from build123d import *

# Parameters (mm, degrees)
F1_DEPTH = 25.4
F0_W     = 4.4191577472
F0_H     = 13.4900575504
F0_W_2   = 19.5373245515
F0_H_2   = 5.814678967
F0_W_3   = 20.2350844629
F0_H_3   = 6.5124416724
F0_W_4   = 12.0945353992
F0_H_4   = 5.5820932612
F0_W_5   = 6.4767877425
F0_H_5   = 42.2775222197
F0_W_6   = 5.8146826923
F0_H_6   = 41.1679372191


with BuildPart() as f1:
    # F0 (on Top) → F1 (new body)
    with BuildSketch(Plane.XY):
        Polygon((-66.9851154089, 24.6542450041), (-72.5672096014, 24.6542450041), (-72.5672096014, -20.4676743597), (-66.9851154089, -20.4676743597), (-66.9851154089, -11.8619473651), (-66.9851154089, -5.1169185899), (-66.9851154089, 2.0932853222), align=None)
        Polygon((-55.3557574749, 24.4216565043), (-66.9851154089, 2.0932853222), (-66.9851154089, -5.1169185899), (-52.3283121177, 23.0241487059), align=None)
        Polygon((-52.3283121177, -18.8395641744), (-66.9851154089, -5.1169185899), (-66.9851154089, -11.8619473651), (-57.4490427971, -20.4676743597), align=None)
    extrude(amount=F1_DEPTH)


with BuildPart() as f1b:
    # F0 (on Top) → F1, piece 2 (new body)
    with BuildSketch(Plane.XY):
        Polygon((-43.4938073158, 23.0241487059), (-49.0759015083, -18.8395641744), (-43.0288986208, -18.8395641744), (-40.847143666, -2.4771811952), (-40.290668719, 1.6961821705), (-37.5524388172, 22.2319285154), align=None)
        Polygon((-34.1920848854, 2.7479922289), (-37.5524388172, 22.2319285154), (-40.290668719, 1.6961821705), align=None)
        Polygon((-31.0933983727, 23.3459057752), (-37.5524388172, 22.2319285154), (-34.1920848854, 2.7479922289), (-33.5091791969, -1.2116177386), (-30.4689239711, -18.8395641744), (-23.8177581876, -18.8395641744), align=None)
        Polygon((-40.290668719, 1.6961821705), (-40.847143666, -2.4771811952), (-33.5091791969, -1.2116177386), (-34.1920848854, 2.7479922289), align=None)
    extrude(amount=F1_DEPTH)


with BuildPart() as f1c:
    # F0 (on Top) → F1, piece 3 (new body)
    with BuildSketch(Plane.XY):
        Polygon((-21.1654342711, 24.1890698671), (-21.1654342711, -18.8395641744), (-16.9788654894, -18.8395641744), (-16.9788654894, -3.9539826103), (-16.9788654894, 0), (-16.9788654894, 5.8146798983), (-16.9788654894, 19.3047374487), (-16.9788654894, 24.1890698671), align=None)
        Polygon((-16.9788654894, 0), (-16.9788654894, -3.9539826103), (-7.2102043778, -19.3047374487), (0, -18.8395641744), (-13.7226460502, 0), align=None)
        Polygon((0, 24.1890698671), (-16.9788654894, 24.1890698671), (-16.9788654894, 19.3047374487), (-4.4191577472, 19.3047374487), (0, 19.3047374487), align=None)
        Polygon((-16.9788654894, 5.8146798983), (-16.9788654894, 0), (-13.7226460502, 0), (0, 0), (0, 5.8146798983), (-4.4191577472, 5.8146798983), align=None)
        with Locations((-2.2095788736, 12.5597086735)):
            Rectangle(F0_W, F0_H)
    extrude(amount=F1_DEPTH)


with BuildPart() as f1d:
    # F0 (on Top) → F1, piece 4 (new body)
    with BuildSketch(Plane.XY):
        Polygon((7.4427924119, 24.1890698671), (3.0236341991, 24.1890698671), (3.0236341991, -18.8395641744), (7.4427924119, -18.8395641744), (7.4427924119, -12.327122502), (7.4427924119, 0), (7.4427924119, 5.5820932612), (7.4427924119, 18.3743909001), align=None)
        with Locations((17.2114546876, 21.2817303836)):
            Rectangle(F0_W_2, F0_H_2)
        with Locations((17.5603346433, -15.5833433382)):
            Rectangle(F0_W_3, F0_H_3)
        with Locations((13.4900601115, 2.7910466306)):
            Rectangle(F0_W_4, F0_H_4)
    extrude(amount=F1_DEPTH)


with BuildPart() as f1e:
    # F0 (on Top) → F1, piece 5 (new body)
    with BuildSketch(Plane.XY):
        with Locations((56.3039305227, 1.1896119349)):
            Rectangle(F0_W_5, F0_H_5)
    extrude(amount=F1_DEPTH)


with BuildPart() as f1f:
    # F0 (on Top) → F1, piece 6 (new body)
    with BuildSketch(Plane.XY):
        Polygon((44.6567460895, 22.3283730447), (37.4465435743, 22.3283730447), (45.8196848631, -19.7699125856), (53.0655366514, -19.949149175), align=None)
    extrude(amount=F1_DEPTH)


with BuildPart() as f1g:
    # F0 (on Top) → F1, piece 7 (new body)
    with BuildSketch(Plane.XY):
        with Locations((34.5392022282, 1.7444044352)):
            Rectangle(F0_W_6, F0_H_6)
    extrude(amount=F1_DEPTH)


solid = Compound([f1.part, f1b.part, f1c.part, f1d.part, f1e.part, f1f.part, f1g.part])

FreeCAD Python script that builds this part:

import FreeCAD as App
import Part
import Sketcher
Q = App.Units.Quantity

doc = App.newDocument("Part")
body = doc.addObject("PartDesign::Body", "Body")

# Sketch on XY plane
sketch1 = body.newObject("Sketcher::SketchObject", "Sketch")
sketch1.AttachmentSupport = (doc.getObject("XY_Plane"), [""])
sketch1.MapMode = "FlatFace"
sketch1.addGeometry([
    Part.LineSegment(App.Vector(-67, 24.7, 0), App.Vector(-72.6, 24.7, 0)),  # 0
    Part.LineSegment(App.Vector(-72.6, 24.7, 0), App.Vector(-72.6, -20.5, 0)),  # 1
    Part.LineSegment(App.Vector(-72.6, -20.5, 0), App.Vector(-67, -20.5, 0)),  # 2
    Part.LineSegment(App.Vector(-67, -20.5, 0), App.Vector(-67, -11.9, 0)),  # 3
    Part.LineSegment(App.Vector(-67, -11.9, 0), App.Vector(-57.4, -20.5, 0)),  # 4
    Part.LineSegment(App.Vector(-57.4, -20.5, 0), App.Vector(-52.3, -18.8, 0)),  # 5
    Part.LineSegment(App.Vector(-52.3, -18.8, 0), App.Vector(-67, -5.1, 0)),  # 6
    Part.LineSegment(App.Vector(-67, -5.1, 0), App.Vector(-52.3, 23, 0)),  # 7
    Part.LineSegment(App.Vector(-52.3, 23, 0), App.Vector(-55.4, 24.4, 0)),  # 8
    Part.LineSegment(App.Vector(-55.4, 24.4, 0), App.Vector(-67, 2.1, 0)),  # 9
    Part.LineSegment(App.Vector(-67, 2.1, 0), App.Vector(-67, 24.7, 0)),  # 10
], False)
sketch1.addConstraint([
    Sketcher.Constraint("Coincident", 0, 2, 1, 1),
    Sketcher.Constraint("Coincident", 1, 2, 2, 1),
    Sketcher.Constraint("Coincident", 2, 2, 3, 1),
    Sketcher.Constraint("Coincident", 3, 2, 4, 1),
    Sketcher.Constraint("Coincident", 4, 2, 5, 1),
    Sketcher.Constraint("Coincident", 5, 2, 6, 1),
    Sketcher.Constraint("Coincident", 6, 2, 7, 1),
    Sketcher.Constraint("Coincident", 7, 2, 8, 1),
    Sketcher.Constraint("Coincident", 8, 2, 9, 1),
    Sketcher.Constraint("Coincident", 9, 2, 10, 1),
    Sketcher.Constraint("Coincident", 10, 2, 0, 1),
    Sketcher.Constraint("Horizontal", 0),
    Sketcher.Constraint("Vertical", 1),
    Sketcher.Constraint("Horizontal", 2),
    Sketcher.Constraint("Vertical", 3),
    Sketcher.Constraint("Vertical", 10),
    Sketcher.Constraint("Parallel", 7, 9),
    Sketcher.Constraint("Horizontal", 2, 2, 4, 2),
    Sketcher.Constraint("Vertical", 3, 2, 6, 2),
    Sketcher.Constraint("Vertical", 5, 2, 7, 2),
    Sketcher.Constraint("Vertical", 6, 2, 9, 2),
    Sketcher.Constraint("DistanceY", 1, 2, 1, 1, Q("45.121919 mm")),
    Sketcher.Constraint("DistanceY", 10, 1, 10, 2, Q("22.56096 mm")),
    Sketcher.Constraint("Distance", 6, Q("20.078169 mm")),
    Sketcher.Constraint("Distance", 7, Q("31.729191 mm")),
    Sketcher.Constraint("DistanceX", 0, 2, 0, 1, Q("5.582094 mm")),
    Sketcher.Constraint("DistanceY", 3, 1, 3, 2, Q("8.605727 mm")),
    Sketcher.Constraint("DistanceX", 0, 2, -1, 1, Q("72.56721 mm")),
    Sketcher.Constraint("DistanceY", 6, 2, -1, 1, Q("5.116919 mm")),
    Sketcher.Constraint("DistanceY", -1, 1, 7, 2, Q("23.024149 mm")),
    Sketcher.Constraint("DistanceX", 4, 2, 5, 2, Q("5.120731 mm")),
    Sketcher.Constraint("DistanceY", 4, 2, 5, 2, Q("1.62811 mm")),
    Sketcher.Constraint("DistanceY", 8, 2, 0, 2, Q("0.232588 mm")),
])
pad1 = body.newObject("PartDesign::Pad", "Pad")
pad1.Profile = sketch1
pad1.Length = Q("1 in")
body2 = doc.addObject("PartDesign::Body", "Body001")

# Sketch on XY plane
sketch2 = body2.newObject("Sketcher::SketchObject", "Sketch001")
sketch2.AttachmentSupport = (doc.getObject("XY_Plane001"), [""])
sketch2.MapMode = "FlatFace"
sketch2.addGeometry([
    Part.LineSegment(App.Vector(-43, 23, 0), App.Vector(-49, -19, 0)),  # 0
    Part.LineSegment(App.Vector(-49, -19, 0), App.Vector(-43, -19, 0)),  # 1
    Part.LineSegment(App.Vector(-43, -19, 0), App.Vector(-41, -2, 0)),  # 2
    Part.LineSegment(App.Vector(-41, -2, 0), App.Vector(-34, -1, 0)),  # 3
    Part.LineSegment(App.Vector(-34, -1, 0), App.Vector(-30, -19, 0)),  # 4
    Part.LineSegment(App.Vector(-30, -19, 0), App.Vector(-24, -19, 0)),  # 5
    Part.LineSegment(App.Vector(-24, -19, 0), App.Vector(-31, 23, 0)),  # 6
    Part.LineSegment(App.Vector(-31, 23, 0), App.Vector(-38, 22, 0)),  # 7
    Part.LineSegment(App.Vector(-38, 22, 0), App.Vector(-43, 23, 0)),  # 8
], False)
sketch2.addConstraint([
    Sketcher.Constraint("Coincident", 0, 2, 1, 1),
    Sketcher.Constraint("Coincident", 1, 2, 2, 1),
    Sketcher.Constraint("Coincident", 2, 2, 3, 1),
    Sketcher.Constraint("Coincident", 3, 2, 4, 1),
    Sketcher.Constraint("Coincident", 4, 2, 5, 1),
    Sketcher.Constraint("Coincident", 5, 2, 6, 1),
    Sketcher.Constraint("Coincident", 6, 2, 7, 1),
    Sketcher.Constraint("Coincident", 7, 2, 8, 1),
    Sketcher.Constraint("Coincident", 8, 2, 0, 1),
    Sketcher.Constraint("Horizontal", 1),
    Sketcher.Constraint("Horizontal", 5),
    Sketcher.Constraint("Parallel", 0, 2),
    Sketcher.Constraint("Perpendicular", 3, 4),
    Sketcher.Constraint("Parallel", 4, 6),
    Sketcher.Constraint("Perpendicular", 6, 7),
    Sketcher.Constraint("Perpendicular", 2, 8),
    Sketcher.Constraint("Horizontal", 1, 2, 4, 2),
    Sketcher.Constraint("Distance", 2, Q("16.507199 mm")),
    Sketcher.Constraint("Distance", 3, Q("7.446299 mm")),
    Sketcher.Constraint("Distance", 4, Q("17.888199 mm")),
    Sketcher.Constraint("Distance", 7, Q("6.554399 mm")),
    Sketcher.Constraint("DistanceX", 0, 2, -1, 1, Q("49.075902 mm")),
    Sketcher.Constraint("DistanceX", 1, 2, -1, 1, Q("43.028899 mm")),
    Sketcher.Constraint("DistanceX", 6, 2, -1, 1, Q("31.093398 mm")),
    Sketcher.Constraint("Distance", 0, Q("42.234231 mm")),
    Sketcher.Constraint("Distance", 6, Q("42.80828 mm")),
    Sketcher.Constraint("DistanceY", 2, 2, -1, 1, Q("2.477181 mm")),
])
pad2 = body2.newObject("PartDesign::Pad", "Pad001")
pad2.Profile = sketch2
pad2.Length = Q("1 in")
body3 = doc.addObject("PartDesign::Body", "Body002")

# Sketch on XY plane
sketch3 = body3.newObject("Sketcher::SketchObject", "Sketch002")
sketch3.AttachmentSupport = (doc.getObject("XY_Plane002"), [""])
sketch3.MapMode = "FlatFace"
sketch3.addGeometry([
    Part.LineSegment(App.Vector(-21.2, 24.2, 0), App.Vector(-21.2, -18.8, 0)),  # 0
    Part.LineSegment(App.Vector(-21.2, -18.8, 0), App.Vector(-17, -18.8, 0)),  # 1
    Part.LineSegment(App.Vector(-17, -18.8, 0), App.Vector(-17, -4, 0)),  # 2
    Part.LineSegment(App.Vector(-17, -4, 0), App.Vector(-7.2, -19.3, 0)),  # 3
    Part.LineSegment(App.Vector(-7.2, -19.3, 0), App.Vector(0, -18.8, 0)),  # 4
    Part.LineSegment(App.Vector(0, -18.8, 0), App.Vector(-13.7, 0, 0)),  # 5
    Part.LineSegment(App.Vector(-13.7, 0, 0), App.Vector(0, 0, 0)),  # 6
    Part.LineSegment(App.Vector(0, 0, 0), App.Vector(0, 24.2, 0)),  # 7
    Part.LineSegment(App.Vector(0, 24.2, 0), App.Vector(-21.2, 24.2, 0)),  # 8
    Part.LineSegment(App.Vector(-4.4, 5.8, 0), App.Vector(-17, 5.8, 0)),  # 9
    Part.LineSegment(App.Vector(-17, 5.8, 0), App.Vector(-17, 19.3, 0)),  # 10
    Part.LineSegment(App.Vector(-17, 19.3, 0), App.Vector(-4.4, 19.3, 0)),  # 11
    Part.LineSegment(App.Vector(-4.4, 19.3, 0), App.Vector(-4.4, 5.8, 0)),  # 12
], False)
sketch3.addConstraint([
    Sketcher.Constraint("Coincident", 0, 2, 1, 1),
    Sketcher.Constraint("Coincident", 1, 2, 2, 1),
    Sketcher.Constraint("Coincident", 2, 2, 3, 1),
    Sketcher.Constraint("Coincident", 3, 2, 4, 1),
    Sketcher.Constraint("Coincident", 4, 2, 5, 1),
    Sketcher.Constraint("Coincident", 5, 2, 6, 1),
    Sketcher.Constraint("Coincident", 6, 2, 7, 1),
    Sketcher.Constraint("Coincident", 7, 2, 8, 1),
    Sketcher.Constraint("Coincident", 8, 2, 0, 1),
    Sketcher.Constraint("Coincident", 9, 2, 10, 1),
    Sketcher.Constraint("Coincident", 10, 2, 11, 1),
    Sketcher.Constraint("Coincident", 11, 2, 12, 1),
    Sketcher.Constraint("Coincident", 12, 2, 9, 1),
    Sketcher.Constraint("Vertical", 0),
    Sketcher.Constraint("Horizontal", 1),
    Sketcher.Constraint("Vertical", 2),
    Sketcher.Constraint("Horizontal", 6),
    Sketcher.Constraint("Vertical", 7),
    Sketcher.Constraint("Horizontal", 8),
    Sketcher.Constraint("Horizontal", 9),
    Sketcher.Constraint("Vertical", 10),
    Sketcher.Constraint("Horizontal", 11),
    Sketcher.Constraint("Vertical", 12),
    Sketcher.Constraint("Coincident", 6, 2, -1, 1),
    Sketcher.Constraint("PointOnObject", 4, 2, -2),
    Sketcher.Constraint("Horizontal", 1, 2, 4, 2),
    Sketcher.Constraint("Vertical", 2, 2, 9, 2),
    Sketcher.Constraint("DistanceX", 1, 1, 1, 2, Q("4.186569 mm")),
    Sketcher.Constraint("DistanceY", 2, 1, 2, 2, Q("14.885582 mm")),
    Sketcher.Constraint("DistanceY", 7, 1, 7, 2, Q("24.18907 mm")),
    Sketcher.Constraint("DistanceX", 6, 1, 6, 2, Q("13.722646 mm")),
    Sketcher.Constraint("DistanceX", 8, 2, 8, 1, Q("21.165434 mm")),
    Sketcher.Constraint("DistanceX", 9, 2, 9, 1, Q("12.559708 mm")),
    Sketcher.Constraint("DistanceY", 0, 2, 0, 1, Q("43.028634 mm")),
    Sketcher.Constraint("DistanceY", 10, 1, 10, 2, Q("13.490058 mm")),
    Sketcher.Constraint("DistanceY", -1, 1, 9, 2, Q("5.81468 mm")),
    Sketcher.Constraint("DistanceX", 1, 2, 3, 2, Q("9.768661 mm")),
    Sketcher.Constraint("Distance", 3, Q("18.195395 mm")),
])
pad3 = body3.newObject("PartDesign::Pad", "Pad002")
pad3.Profile = sketch3
pad3.Length = Q("1 in")
body4 = doc.addObject("PartDesign::Body", "Body003")

# Sketch on XY plane
sketch4 = body4.newObject("Sketcher::SketchObject", "Sketch003")
sketch4.AttachmentSupport = (doc.getObject("XY_Plane003"), [""])
sketch4.MapMode = "FlatFace"
sketch4.addGeometry([
    Part.LineSegment(App.Vector(3, 24, 0), App.Vector(3, -19, 0)),  # 0
    Part.LineSegment(App.Vector(3, -19, 0), App.Vector(28, -19, 0)),  # 1
    Part.LineSegment(App.Vector(28, -19, 0), App.Vector(28, -12, 0)),  # 2
    Part.LineSegment(App.Vector(28, -12, 0), App.Vector(7, -12, 0)),  # 3
    Part.LineSegment(App.Vector(7, -12, 0), App.Vector(7, 0, 0)),  # 4
    Part.LineSegment(App.Vector(7, 0, 0), App.Vector(20, 0, 0)),  # 5
    Part.LineSegment(App.Vector(20, 0, 0), App.Vector(20, 6, 0)),  # 6
    Part.LineSegment(App.Vector(20, 6, 0), App.Vector(7, 6, 0)),  # 7
    Part.LineSegment(App.Vector(7, 6, 0), App.Vector(7, 18, 0)),  # 8
    Part.LineSegment(App.Vector(7, 18, 0), App.Vector(27, 18, 0)),  # 9
    Part.LineSegment(App.Vector(27, 18, 0), App.Vector(27, 24, 0)),  # 10
    Part.LineSegment(App.Vector(27, 24, 0), App.Vector(3, 24, 0)),  # 11
], False)
sketch4.addConstraint([
    Sketcher.Constraint("Coincident", 0, 2, 1, 1),
    Sketcher.Constraint("Coincident", 1, 2, 2, 1),
    Sketcher.Constraint("Coincident", 2, 2, 3, 1),
    Sketcher.Constraint("Coincident", 3, 2, 4, 1),
    Sketcher.Constraint("Coincident", 4, 2, 5, 1),
    Sketcher.Constraint("Coincident", 5, 2, 6, 1),
    Sketcher.Constraint("Coincident", 6, 2, 7, 1),
    Sketcher.Constraint("Coincident", 7, 2, 8, 1),
    Sketcher.Constraint("Coincident", 8, 2, 9, 1),
    Sketcher.Constraint("Coincident", 9, 2, 10, 1),
    Sketcher.Constraint("Coincident", 10, 2, 11, 1),
    Sketcher.Constraint("Coincident", 11, 2, 0, 1),
    Sketcher.Constraint("Vertical", 0),
    Sketcher.Constraint("Horizontal", 1),
    Sketcher.Constraint("Vertical", 2),
    Sketcher.Constraint("Horizontal", 3),
    Sketcher.Constraint("Vertical", 4),
    Sketcher.Constraint("Horizontal", 5),
    Sketcher.Constraint("Vertical", 6),
    Sketcher.Constraint("Horizontal", 7),
    Sketcher.Constraint("Vertical", 8),
    Sketcher.Constraint("Horizontal", 9),
    Sketcher.Constraint("Vertical", 10),
    Sketcher.Constraint("Horizontal", 11),
    Sketcher.Constraint("PointOnObject", 4, 2, -1),
    Sketcher.Constraint("Vertical", 4, 2, 7, 2),
    Sketcher.Constraint("DistanceY", 2, 1, 2, 2, Q("6.512442 mm")),
    Sketcher.Constraint("DistanceY", 10, 1, 10, 2, Q("5.814679 mm")),
    Sketcher.Constraint("DistanceX", 1, 1, 1, 2, Q("24.654243 mm")),
    Sketcher.Constraint("DistanceX", 3, 2, 3, 1, Q("20.235084 mm")),
    Sketcher.Constraint("DistanceX", 5, 1, 5, 2, Q("12.094535 mm")),
    Sketcher.Constraint("DistanceX", 9, 1, 9, 2, Q("19.537325 mm")),
    Sketcher.Constraint("DistanceY", 0, 2, 0, 1, Q("43.028634 mm")),
    Sketcher.Constraint("DistanceY", 4, 1, 4, 2, Q("12.327123 mm")),
    Sketcher.Constraint("DistanceY", 6, 1, 6, 2, Q("5.582093 mm")),
    Sketcher.Constraint("DistanceX", -1, 1, 0, 2, Q("3.023634 mm")),
])
pad4 = body4.newObject("PartDesign::Pad", "Pad003")
pad4.Profile = sketch4
pad4.Length = Q("1 in")
body5 = doc.addObject("PartDesign::Body", "Body004")

# Sketch on XY plane
sketch5 = body5.newObject("Sketcher::SketchObject", "Sketch004")
sketch5.AttachmentSupport = (doc.getObject("XY_Plane004"), [""])
sketch5.MapMode = "FlatFace"
sketch5.addGeometry([
    Part.LineSegment(App.Vector(53, 22, 0), App.Vector(53, -20, 0)),
    Part.LineSegment(App.Vector(53, -20, 0), App.Vector(60, -20, 0)),
    Part.LineSegment(App.Vector(60, -20, 0), App.Vector(60, 22, 0)),
    Part.LineSegment(App.Vector(60, 22, 0), App.Vector(53, 22, 0)),
], False)
sketch5.addConstraint([
    Sketcher.Constraint("Coincident", 0, 2, 1, 1),
    Sketcher.Constraint("Coincident", 1, 2, 2, 1),
    Sketcher.Constraint("Coincident", 2, 2, 3, 1),
    Sketcher.Constraint("Coincident", 3, 2, 0, 1),
    Sketcher.Constraint("Vertical", 0),
    Sketcher.Constraint("Horizontal", 1),
    Sketcher.Constraint("Vertical", 2),
    Sketcher.Constraint("Horizontal", 3),
    Sketcher.Constraint("DistanceX", 1, 1, 1, 2, Q("6.476788 mm")),
    Sketcher.Constraint("DistanceY", 0, 2, 0, 1, Q("42.277522 mm")),
    Sketcher.Constraint("DistanceY", 0, 2, -1, 1, Q("19.949149 mm")),
    Sketcher.Constraint("DistanceX", -1, 1, 0, 2, Q("53.065537 mm")),
])
pad5 = body5.newObject("PartDesign::Pad", "Pad004")
pad5.Profile = sketch5
pad5.Length = Q("1 in")
body6 = doc.addObject("PartDesign::Body", "Body005")

# Sketch on XY plane
sketch6 = body6.newObject("Sketcher::SketchObject", "Sketch005")
sketch6.AttachmentSupport = (doc.getObject("XY_Plane005"), [""])
sketch6.MapMode = "FlatFace"
sketch6.addGeometry([
    Part.LineSegment(App.Vector(45, 22, 0), App.Vector(37, 22, 0)),
    Part.LineSegment(App.Vector(37, 22, 0), App.Vector(46, -20, 0)),
    Part.LineSegment(App.Vector(46, -20, 0), App.Vector(53, -20, 0)),
    Part.LineSegment(App.Vector(53, -20, 0), App.Vector(45, 22, 0)),
], False)
sketch6.addConstraint([
    Sketcher.Constraint("Coincident", 0, 2, 1, 1),
    Sketcher.Constraint("Coincident", 1, 2, 2, 1),
    Sketcher.Constraint("Coincident", 2, 2, 3, 1),
    Sketcher.Constraint("Coincident", 3, 2, 0, 1),
    Sketcher.Constraint("Horizontal", 0),
    Sketcher.Constraint("Parallel", 1, 3),
    Sketcher.Constraint("Distance", 2, Q("7.248068 mm")),
    Sketcher.Constraint("DistanceX", 0, 2, 0, 1, Q("7.210203 mm")),
    Sketcher.Constraint("DistanceY", 2, 2, -1, 1, Q("19.949149 mm")),
    Sketcher.Constraint("DistanceX", 0, 2, 1, 2, Q("8.373141 mm")),
    Sketcher.Constraint("Distance", 1, Q("42.922898 mm")),
    Sketcher.Constraint("DistanceX", -1, 1, 0, 2, Q("37.446544 mm")),
])
pad6 = body6.newObject("PartDesign::Pad", "Pad005")
pad6.Profile = sketch6
pad6.Length = Q("1 in")
body7 = doc.addObject("PartDesign::Body", "Body006")

# Sketch on XY plane
sketch7 = body7.newObject("Sketcher::SketchObject", "Sketch006")
sketch7.AttachmentSupport = (doc.getObject("XY_Plane006"), [""])
sketch7.MapMode = "FlatFace"
sketch7.addGeometry([
    Part.LineSegment(App.Vector(32, 22, 0), App.Vector(32, -19, 0)),
    Part.LineSegment(App.Vector(32, -19, 0), App.Vector(37, -19, 0)),
    Part.LineSegment(App.Vector(37, -19, 0), App.Vector(37, 22, 0)),
    Part.LineSegment(App.Vector(37, 22, 0), App.Vector(32, 22, 0)),
], False)
sketch7.addConstraint([
    Sketcher.Constraint("Coincident", 0, 2, 1, 1),
    Sketcher.Constraint("Coincident", 1, 2, 2, 1),
    Sketcher.Constraint("Coincident", 2, 2, 3, 1),
    Sketcher.Constraint("Coincident", 3, 2, 0, 1),
    Sketcher.Constraint("Vertical", 0),
    Sketcher.Constraint("Horizontal", 1),
    Sketcher.Constraint("Vertical", 2),
    Sketcher.Constraint("Horizontal", 3),
    Sketcher.Constraint("DistanceX", 1, 1, 1, 2, Q("5.814683 mm")),
    Sketcher.Constraint("DistanceY", 0, 2, 0, 1, Q("41.167937 mm")),
    Sketcher.Constraint("DistanceX", -1, 1, 0, 2, Q("31.631861 mm")),
    Sketcher.Constraint("DistanceY", 0, 2, -1, 1, Q("18.839564 mm")),
])
pad7 = body7.newObject("PartDesign::Pad", "Pad006")
pad7.Profile = sketch7
pad7.Length = Q("1 in")

doc.recompute()
